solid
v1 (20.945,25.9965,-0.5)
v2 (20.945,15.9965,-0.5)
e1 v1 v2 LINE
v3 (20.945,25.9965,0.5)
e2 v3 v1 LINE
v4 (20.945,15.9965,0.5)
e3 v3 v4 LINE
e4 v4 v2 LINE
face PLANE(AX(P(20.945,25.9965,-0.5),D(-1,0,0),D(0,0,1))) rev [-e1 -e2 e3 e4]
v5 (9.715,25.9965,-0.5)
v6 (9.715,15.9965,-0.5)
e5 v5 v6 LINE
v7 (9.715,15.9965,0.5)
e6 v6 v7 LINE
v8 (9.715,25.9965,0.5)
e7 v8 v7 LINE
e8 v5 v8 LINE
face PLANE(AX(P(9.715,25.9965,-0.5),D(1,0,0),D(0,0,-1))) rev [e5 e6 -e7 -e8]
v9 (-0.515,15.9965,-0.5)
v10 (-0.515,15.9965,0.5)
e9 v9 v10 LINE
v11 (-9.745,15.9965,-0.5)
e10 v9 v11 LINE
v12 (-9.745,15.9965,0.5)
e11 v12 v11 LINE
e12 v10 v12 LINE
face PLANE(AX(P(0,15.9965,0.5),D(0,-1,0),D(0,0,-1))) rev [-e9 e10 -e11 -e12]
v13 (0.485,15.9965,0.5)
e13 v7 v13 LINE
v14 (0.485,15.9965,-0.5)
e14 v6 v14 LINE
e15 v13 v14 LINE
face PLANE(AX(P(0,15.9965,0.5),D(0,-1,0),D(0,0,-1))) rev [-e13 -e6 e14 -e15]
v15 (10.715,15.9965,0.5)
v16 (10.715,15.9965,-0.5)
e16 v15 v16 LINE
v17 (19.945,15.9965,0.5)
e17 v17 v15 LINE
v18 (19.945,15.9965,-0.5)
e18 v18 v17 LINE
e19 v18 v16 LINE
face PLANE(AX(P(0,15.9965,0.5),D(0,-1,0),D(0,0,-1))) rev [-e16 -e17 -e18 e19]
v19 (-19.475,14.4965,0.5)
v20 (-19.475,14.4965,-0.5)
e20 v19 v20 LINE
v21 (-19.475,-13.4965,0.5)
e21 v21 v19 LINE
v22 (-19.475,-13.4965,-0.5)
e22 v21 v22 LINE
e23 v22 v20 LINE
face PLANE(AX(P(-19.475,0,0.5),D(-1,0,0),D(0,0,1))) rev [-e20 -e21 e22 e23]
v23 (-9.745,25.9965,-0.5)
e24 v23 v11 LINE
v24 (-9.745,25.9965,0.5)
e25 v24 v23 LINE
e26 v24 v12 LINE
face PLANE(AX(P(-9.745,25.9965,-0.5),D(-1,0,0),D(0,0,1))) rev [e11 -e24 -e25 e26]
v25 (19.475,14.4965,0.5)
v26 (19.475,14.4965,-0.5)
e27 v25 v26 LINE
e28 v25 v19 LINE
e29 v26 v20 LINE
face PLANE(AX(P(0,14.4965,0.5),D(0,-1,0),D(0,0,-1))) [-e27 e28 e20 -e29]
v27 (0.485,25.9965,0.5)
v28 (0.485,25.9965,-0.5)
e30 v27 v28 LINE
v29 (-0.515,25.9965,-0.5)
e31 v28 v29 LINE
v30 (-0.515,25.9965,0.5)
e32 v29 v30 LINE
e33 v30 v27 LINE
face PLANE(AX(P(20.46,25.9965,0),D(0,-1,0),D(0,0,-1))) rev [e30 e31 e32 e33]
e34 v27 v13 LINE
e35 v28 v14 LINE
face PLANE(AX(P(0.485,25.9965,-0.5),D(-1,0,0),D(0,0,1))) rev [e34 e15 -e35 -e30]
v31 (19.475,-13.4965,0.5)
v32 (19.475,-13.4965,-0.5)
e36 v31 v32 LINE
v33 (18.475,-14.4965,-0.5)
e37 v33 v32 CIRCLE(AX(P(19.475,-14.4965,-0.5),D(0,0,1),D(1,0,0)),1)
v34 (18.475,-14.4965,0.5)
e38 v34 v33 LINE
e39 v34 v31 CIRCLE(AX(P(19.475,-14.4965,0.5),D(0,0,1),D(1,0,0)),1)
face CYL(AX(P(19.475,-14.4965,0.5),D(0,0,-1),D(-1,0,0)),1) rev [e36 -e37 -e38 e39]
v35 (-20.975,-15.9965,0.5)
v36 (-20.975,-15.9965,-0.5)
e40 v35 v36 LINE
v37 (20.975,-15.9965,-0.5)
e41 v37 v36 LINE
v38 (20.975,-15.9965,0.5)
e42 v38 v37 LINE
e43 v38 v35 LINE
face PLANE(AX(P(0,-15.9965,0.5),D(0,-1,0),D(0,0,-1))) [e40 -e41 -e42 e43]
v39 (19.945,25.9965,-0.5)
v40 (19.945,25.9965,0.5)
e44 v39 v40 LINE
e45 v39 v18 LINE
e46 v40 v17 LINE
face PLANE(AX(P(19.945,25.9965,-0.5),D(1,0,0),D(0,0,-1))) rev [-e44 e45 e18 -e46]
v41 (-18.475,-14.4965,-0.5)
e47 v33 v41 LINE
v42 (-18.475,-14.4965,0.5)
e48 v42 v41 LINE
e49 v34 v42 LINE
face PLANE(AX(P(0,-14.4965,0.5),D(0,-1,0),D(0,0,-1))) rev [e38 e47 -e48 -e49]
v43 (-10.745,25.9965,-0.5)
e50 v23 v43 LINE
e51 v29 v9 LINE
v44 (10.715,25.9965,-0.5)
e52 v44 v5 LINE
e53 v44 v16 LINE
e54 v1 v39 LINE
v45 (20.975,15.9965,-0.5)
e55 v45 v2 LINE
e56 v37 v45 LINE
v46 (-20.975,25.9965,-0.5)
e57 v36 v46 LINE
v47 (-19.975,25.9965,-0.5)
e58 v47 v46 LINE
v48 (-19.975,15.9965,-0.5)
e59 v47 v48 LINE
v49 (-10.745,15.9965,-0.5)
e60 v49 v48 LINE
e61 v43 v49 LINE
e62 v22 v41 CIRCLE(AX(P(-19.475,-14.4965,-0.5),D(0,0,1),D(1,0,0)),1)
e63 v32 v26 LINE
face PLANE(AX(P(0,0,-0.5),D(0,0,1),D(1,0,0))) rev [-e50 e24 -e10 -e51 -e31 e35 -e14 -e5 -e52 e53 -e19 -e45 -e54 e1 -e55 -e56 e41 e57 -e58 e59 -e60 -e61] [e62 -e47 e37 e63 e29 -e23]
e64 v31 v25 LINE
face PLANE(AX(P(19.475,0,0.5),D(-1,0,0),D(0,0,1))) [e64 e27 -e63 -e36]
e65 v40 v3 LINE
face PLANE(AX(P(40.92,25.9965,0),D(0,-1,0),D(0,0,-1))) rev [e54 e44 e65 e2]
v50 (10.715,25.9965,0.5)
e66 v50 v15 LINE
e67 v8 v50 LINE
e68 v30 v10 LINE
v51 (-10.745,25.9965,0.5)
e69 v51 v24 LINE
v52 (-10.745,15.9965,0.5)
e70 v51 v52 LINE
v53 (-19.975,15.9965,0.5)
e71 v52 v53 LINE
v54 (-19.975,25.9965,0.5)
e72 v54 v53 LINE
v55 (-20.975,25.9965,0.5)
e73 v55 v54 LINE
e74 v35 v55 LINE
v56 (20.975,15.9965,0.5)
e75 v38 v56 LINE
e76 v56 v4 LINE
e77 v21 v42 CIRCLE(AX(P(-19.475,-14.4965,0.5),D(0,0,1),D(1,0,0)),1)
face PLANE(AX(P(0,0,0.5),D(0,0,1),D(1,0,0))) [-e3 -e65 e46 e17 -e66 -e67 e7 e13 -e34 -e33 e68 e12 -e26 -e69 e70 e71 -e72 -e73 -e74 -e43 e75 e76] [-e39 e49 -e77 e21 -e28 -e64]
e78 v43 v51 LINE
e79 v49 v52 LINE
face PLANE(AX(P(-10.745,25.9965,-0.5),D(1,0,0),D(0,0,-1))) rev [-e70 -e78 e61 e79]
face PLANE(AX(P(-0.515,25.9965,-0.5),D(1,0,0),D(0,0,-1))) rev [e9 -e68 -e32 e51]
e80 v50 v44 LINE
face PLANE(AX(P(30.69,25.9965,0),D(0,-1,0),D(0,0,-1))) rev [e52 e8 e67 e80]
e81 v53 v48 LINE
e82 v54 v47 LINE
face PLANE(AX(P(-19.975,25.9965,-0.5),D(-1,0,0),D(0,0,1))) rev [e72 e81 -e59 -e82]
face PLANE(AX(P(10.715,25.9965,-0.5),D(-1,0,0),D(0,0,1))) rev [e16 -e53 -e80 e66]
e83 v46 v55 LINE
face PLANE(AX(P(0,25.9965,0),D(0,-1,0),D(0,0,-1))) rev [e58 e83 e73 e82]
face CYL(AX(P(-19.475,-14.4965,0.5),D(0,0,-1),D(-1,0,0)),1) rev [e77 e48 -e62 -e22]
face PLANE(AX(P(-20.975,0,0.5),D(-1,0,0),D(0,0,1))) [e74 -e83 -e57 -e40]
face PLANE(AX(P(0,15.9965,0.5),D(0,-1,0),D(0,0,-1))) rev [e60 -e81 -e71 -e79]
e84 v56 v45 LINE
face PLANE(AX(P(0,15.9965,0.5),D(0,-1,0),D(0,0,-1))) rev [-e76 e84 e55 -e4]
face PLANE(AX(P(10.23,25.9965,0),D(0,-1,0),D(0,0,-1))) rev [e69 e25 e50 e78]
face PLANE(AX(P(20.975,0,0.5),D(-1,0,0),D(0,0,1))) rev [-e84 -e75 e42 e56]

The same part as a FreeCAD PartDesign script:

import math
import FreeCAD as App
import Part
import Sketcher
from FreeCAD import Vector
Q = App.Units.Quantity


def add_polygon(sketch, points):
    """Adds a closed chain of lines whose ends are joined by coincident constraints."""
    first, n = sketch.GeometryCount, len(points)
    for a, b in zip(points, points[1:] + points[:1]):
        sketch.addGeometry(Part.LineSegment(App.Vector(*a, 0), App.Vector(*b, 0)), False)
    for i in range(n):
        sketch.addConstraint(Sketcher.Constraint("Coincident", first + i, 2, first + (i + 1) % n, 1))

doc = App.newDocument("Part")
body = doc.addObject("PartDesign::Body", "Body")

sketch1 = body.newObject("Sketcher::SketchObject", "Sketch")
sketch1.AttachmentSupport = (doc.getObject("XY_Plane"), [""])
sketch1.MapMode = "FlatFace"
add_polygon(sketch1, [(-21, 16), (-21, -16), (21, -16), (21, 16)])
sketch1.addGeometry(Part.ArcOfCircle(Part.Circle(Vector(19.5, -14.5, 0), Vector(0, 0, 1), 1), math.radians(180), math.radians(360)), False)
sketch1.addGeometry(Part.LineSegment(Vector(18.5, -14.5, 0), Vector(-18.5, -14.5, 0)), False)
sketch1.addGeometry(Part.ArcOfCircle(Part.Circle(Vector(-19.5, -14.5, 0), Vector(0, 0, 1), 1), math.radians(90), math.radians(360)), False)
sketch1.addGeometry(Part.LineSegment(Vector(-19.5, -13.5, 0), Vector(-19.5, 14.5, 0)), False)
sketch1.addGeometry(Part.LineSegment(Vector(-19.5, 14.5, 0), Vector(19.5, 14.5, 0)), False)
sketch1.addGeometry(Part.LineSegment(Vector(19.5, 14.5, 0), Vector(19.5, -13.5, 0)), False)
sketch1.addGeometry(Part.ArcOfCircle(Part.Circle(Vector(19.5, -14.5, 0), Vector(0, 0, 1), 1), math.radians(0), math.radians(90)), False)
sketch1.addConstraint([
    Sketcher.Constraint("Coincident", 4, 1, 5, 1),
    Sketcher.Constraint("Coincident", 5, 2, 6, 2),
    Sketcher.Constraint("Coincident", 6, 1, 7, 1),
    Sketcher.Constraint("Coincident", 7, 2, 8, 1),
    Sketcher.Constraint("Coincident", 8, 2, 9, 1),
    Sketcher.Constraint("Coincident", 9, 2, 10, 2),
    Sketcher.Constraint("Tangent", 10, 1, 4, 2),
    Sketcher.Constraint("Vertical", 0),
    Sketcher.Constraint("Horizontal", 1),
    Sketcher.Constraint("Vertical", 2),
    Sketcher.Constraint("Horizontal", 3),
    Sketcher.Constraint("Horizontal", 5),
    Sketcher.Constraint("Vertical", 7),
    Sketcher.Constraint("Horizontal", 8),
    Sketcher.Constraint("Vertical", 9),
    Sketcher.Constraint("Equal", 4, 6),
    Sketcher.Constraint("Equal", 6, 10),
    Sketcher.Constraint("Symmetric", 0, 2, 2, 2, -1, 1),
    Sketcher.Constraint("Symmetric", 4, 3, 6, 3, -2),
    Sketcher.Constraint("Horizontal", 10, 3, 4, 1),
    Sketcher.Constraint("Horizontal", 5, 2, 10, 1),
    Sketcher.Constraint("Vertical", 10, 3, 8, 2),
    Sketcher.Constraint("Radius", 4, Q("1 mm")),
    Sketcher.Constraint("DistanceX", 6, 1, 5, 2, Q("1 mm")),
    Sketcher.Constraint("DistanceX", 1, 1, 1, 2, Q("41.95 mm")),
    Sketcher.Constraint("DistanceX", 5, 2, 5, 1, Q("36.95 mm")),
    Sketcher.Constraint("DistanceY", 0, 2, 6, 3, Q("1.5 mm")),
    Sketcher.Constraint("DistanceY", 7, 2, 3, 2, Q("1.5 mm")),
    Sketcher.Constraint("DistanceY", 0, 2, 0, 1, Q("31.993 mm")),
])
pad1 = body.newObject("PartDesign::Pad", "Pad")
pad1.Profile = sketch1
pad1.Length = 1
pad1.Midplane = True

sketch2 = body.newObject("Sketcher::SketchObject", "Sketch001")
sketch2.AttachmentSupport = (doc.getObject("XZ_Plane"), [""])
sketch2.MapMode = "FlatFace"
sketch2.AttachmentOffset = App.Placement(Vector(0, 0, -15.9965), App.Rotation())
add_polygon(sketch2, [(-21, -0.5), (-21, 0.5), (-20, 0.5), (-20, -0.5)])
sketch2.addConstraint([
    Sketcher.Constraint("Vertical", 0),
    Sketcher.Constraint("Horizontal", 1),
    Sketcher.Constraint("Vertical", 2),
    Sketcher.Constraint("Horizontal", 3),
    Sketcher.Constraint("Equal", 3, 0),
    Sketcher.Constraint("DistanceX", 1, 1, 1, 2, Q("1 mm")),
    Sketcher.Constraint("DistanceY", -1, 1, 0, 2, Q("0.5 mm")),
    Sketcher.Constraint("DistanceX", 0, 2, -1, 1, Q("20.975 mm")),
])
pad2 = body.newObject("PartDesign::Pad", "Pad001")
pad2.Profile = sketch2
pad2.Length = 10
pad2.Reversed = True
doc.recompute()

linearpattern = body.newObject("PartDesign::LinearPattern", "LinearPattern")
linearpattern.Originals = [pad2]
linearpattern.Direction = (doc.getObject("X_Axis"), [""])
linearpattern.Mode = "offset"
linearpattern.Offset = 10.23
linearpattern.Occurrences = 5
body.Tip = linearpattern

doc.recompute()
